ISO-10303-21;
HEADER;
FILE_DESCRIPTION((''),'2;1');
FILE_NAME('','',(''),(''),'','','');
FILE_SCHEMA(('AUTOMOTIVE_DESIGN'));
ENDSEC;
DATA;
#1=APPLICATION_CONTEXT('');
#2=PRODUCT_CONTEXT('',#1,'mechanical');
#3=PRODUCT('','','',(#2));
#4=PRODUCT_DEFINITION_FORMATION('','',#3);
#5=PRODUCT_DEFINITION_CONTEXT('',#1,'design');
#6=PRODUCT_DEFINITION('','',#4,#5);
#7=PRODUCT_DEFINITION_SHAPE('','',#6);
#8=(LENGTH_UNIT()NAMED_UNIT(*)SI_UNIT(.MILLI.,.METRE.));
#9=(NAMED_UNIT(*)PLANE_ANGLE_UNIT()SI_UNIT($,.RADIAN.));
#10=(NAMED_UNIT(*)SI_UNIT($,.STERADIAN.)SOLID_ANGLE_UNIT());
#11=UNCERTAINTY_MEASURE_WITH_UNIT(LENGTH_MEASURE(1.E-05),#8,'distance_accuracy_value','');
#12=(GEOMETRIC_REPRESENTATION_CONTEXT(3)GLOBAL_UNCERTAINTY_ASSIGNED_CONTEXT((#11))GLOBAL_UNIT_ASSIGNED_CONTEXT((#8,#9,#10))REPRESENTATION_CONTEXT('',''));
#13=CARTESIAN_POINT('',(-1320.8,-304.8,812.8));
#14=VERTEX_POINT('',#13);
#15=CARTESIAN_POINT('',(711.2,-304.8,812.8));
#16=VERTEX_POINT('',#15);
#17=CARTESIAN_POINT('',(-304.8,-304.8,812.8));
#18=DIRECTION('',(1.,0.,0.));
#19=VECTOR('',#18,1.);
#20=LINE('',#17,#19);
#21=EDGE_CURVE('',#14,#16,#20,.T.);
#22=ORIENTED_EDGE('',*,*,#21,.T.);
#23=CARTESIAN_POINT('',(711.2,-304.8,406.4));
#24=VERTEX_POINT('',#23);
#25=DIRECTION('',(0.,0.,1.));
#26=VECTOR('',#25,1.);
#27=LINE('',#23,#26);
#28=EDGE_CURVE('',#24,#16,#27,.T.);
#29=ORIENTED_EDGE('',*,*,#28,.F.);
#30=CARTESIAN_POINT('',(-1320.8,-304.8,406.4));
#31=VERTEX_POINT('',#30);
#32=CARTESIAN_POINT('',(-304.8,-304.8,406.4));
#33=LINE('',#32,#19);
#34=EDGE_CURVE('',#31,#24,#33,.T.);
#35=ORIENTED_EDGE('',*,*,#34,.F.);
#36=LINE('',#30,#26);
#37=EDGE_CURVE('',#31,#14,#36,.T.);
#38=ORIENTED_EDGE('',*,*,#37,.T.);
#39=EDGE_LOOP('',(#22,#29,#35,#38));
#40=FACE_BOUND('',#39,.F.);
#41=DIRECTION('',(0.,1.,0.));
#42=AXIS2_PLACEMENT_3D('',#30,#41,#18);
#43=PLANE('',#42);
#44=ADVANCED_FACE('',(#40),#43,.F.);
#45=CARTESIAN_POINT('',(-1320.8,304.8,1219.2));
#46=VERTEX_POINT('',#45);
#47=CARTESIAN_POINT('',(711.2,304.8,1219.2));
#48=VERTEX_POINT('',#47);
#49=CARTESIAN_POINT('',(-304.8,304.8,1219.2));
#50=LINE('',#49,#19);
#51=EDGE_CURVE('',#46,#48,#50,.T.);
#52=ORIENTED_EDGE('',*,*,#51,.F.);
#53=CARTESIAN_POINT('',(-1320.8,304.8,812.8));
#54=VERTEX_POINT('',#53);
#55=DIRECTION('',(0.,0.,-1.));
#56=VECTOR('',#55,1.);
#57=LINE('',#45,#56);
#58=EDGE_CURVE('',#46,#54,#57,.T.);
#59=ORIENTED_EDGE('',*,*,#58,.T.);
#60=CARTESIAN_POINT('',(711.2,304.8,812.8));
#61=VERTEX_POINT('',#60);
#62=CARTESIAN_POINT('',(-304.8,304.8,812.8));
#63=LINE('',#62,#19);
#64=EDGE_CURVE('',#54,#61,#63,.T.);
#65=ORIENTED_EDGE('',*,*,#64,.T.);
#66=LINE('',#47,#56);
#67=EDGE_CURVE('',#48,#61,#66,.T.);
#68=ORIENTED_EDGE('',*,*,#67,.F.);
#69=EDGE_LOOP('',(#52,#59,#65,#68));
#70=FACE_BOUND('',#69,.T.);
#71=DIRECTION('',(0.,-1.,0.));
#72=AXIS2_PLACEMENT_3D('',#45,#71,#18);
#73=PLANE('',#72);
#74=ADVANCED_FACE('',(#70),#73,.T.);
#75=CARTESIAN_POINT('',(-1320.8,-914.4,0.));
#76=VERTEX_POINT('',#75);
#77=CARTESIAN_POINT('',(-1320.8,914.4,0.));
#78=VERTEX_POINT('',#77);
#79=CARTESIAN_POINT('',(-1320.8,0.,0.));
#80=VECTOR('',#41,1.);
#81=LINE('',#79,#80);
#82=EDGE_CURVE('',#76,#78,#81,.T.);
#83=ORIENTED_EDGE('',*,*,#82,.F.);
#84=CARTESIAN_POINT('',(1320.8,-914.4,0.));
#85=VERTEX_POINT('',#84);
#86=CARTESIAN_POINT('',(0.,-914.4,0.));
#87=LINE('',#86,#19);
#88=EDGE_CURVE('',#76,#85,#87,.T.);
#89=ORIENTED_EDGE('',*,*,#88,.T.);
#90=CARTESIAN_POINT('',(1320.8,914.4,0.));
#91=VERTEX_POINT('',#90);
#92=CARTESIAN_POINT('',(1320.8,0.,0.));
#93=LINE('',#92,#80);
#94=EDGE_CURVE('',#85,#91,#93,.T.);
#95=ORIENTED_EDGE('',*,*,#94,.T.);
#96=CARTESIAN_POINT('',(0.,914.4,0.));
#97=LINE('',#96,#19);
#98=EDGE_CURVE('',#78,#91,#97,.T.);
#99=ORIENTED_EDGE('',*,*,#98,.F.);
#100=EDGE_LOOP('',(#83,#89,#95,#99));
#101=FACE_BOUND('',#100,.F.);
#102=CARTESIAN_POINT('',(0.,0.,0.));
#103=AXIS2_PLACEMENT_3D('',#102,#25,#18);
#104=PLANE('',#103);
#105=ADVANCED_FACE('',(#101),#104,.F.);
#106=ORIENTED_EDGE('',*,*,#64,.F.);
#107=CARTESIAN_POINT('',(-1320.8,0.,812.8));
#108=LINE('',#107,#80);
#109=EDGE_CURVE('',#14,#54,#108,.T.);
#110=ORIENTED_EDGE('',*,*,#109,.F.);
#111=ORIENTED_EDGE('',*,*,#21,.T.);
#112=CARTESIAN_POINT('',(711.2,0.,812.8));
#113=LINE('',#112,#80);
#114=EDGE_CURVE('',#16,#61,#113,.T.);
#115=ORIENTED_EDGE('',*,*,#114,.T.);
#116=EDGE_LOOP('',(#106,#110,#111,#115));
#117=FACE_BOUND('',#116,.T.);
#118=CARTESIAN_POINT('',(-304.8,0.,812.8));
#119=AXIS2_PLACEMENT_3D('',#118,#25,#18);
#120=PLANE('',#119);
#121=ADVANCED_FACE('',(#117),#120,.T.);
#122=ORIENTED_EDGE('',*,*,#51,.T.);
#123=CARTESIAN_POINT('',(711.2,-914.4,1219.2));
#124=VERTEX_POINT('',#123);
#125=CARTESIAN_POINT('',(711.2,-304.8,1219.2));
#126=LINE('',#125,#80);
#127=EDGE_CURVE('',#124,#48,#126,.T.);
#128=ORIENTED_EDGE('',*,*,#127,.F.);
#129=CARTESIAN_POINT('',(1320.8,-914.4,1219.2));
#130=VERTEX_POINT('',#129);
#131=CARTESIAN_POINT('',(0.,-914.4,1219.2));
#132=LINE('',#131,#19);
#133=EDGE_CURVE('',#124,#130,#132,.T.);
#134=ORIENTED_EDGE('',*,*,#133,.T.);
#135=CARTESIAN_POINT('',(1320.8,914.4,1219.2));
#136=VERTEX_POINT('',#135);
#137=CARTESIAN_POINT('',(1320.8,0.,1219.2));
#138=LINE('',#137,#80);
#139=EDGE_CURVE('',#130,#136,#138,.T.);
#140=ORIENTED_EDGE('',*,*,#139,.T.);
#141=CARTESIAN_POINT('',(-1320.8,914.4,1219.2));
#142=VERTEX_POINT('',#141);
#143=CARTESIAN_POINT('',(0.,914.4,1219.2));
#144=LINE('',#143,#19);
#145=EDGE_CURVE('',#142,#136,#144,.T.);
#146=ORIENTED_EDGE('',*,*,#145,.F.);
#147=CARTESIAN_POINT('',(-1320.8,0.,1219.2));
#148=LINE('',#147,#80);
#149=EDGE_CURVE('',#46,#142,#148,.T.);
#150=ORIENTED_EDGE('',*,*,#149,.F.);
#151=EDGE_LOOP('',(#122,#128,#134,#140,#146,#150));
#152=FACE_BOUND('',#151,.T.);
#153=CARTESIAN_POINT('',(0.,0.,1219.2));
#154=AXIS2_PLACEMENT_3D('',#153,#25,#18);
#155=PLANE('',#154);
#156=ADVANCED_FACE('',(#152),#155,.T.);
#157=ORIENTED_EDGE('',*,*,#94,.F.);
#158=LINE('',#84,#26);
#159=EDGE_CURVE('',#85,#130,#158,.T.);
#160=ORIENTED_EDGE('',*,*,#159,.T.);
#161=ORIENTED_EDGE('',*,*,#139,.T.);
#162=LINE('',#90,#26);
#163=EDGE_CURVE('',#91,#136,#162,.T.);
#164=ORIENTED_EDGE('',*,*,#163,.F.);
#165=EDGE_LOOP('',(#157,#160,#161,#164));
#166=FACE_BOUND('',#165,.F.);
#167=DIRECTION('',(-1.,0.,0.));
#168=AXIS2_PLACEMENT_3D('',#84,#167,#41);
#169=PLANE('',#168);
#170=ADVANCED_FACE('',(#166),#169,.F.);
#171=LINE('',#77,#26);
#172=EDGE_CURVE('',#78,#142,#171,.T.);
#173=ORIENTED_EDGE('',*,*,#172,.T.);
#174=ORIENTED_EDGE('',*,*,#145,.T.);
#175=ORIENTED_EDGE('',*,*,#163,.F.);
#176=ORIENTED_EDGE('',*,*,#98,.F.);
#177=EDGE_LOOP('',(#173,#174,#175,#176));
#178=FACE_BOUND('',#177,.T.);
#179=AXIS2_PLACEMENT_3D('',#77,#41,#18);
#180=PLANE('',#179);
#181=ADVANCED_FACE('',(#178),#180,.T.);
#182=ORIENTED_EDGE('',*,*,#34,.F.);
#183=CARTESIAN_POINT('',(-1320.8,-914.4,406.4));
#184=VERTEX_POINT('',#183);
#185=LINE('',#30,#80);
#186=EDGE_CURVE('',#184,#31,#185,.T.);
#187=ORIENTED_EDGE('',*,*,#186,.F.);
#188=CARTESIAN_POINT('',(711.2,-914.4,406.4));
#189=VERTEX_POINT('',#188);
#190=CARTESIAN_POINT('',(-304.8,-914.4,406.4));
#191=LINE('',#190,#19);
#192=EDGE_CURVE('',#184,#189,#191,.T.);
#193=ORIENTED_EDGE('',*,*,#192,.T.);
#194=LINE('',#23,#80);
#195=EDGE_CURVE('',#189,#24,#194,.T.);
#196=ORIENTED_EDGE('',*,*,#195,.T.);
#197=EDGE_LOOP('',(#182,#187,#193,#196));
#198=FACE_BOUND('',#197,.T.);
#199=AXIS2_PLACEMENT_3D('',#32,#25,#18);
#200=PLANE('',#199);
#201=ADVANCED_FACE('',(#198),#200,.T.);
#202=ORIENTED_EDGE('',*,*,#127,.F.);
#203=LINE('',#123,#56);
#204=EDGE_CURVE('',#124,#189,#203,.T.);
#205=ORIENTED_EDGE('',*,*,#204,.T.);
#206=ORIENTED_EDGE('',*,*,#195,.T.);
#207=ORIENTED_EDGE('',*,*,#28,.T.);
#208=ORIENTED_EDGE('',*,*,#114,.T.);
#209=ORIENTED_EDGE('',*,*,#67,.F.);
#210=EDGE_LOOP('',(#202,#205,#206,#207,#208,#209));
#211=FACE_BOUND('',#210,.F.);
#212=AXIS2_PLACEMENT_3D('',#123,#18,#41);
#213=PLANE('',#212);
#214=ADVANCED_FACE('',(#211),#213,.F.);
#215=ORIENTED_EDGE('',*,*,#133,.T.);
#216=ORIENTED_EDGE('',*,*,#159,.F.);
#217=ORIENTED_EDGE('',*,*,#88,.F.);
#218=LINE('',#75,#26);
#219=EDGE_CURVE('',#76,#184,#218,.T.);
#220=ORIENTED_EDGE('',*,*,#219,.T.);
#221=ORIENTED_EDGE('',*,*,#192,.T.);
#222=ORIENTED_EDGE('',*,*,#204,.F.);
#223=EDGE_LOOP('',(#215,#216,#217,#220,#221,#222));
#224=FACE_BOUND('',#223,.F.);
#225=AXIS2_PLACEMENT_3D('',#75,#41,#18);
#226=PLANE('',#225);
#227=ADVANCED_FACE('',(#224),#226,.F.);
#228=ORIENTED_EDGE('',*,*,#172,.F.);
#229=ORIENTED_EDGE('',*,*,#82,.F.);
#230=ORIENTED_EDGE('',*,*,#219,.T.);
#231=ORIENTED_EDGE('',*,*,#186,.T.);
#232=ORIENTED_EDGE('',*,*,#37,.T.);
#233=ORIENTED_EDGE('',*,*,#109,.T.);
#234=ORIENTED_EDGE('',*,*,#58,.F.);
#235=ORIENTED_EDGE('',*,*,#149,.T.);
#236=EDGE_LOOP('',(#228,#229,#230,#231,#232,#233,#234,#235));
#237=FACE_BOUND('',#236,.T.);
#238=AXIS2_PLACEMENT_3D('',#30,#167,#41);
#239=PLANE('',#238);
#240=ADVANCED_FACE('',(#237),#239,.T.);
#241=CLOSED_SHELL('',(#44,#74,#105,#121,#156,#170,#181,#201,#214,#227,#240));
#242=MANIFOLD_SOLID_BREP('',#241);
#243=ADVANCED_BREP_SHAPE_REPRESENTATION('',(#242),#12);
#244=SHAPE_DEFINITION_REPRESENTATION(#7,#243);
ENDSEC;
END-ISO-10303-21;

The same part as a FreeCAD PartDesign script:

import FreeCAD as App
import Part
import Sketcher
Q = App.Units.Quantity

doc = App.newDocument("Part")
body = doc.addObject("PartDesign::Body", "Body")

sketch1 = doc.addObject("Sketcher::SketchObject", "Sketch")
body.addObject(sketch1)
sketch1.AttachmentSupport = (doc.XY_Plane, [""])
sketch1.MapMode = "FlatFace"
sketch1.addGeometry(Part.LineSegment(App.Vector(-1320.8, 914.4, 0), App.Vector(-1320.8, -914.4, 0)), False)
sketch1.addGeometry(Part.LineSegment(App.Vector(-1320.8, -914.4, 0), App.Vector(1320.8, -914.4, 0)), False)
sketch1.addGeometry(Part.LineSegment(App.Vector(1320.8, -914.4, 0), App.Vector(1320.8, 914.4, 0)), False)
sketch1.addGeometry(Part.LineSegment(App.Vector(1320.8, 914.4, 0), App.Vector(-1320.8, 914.4, 0)), False)
sketch1.addConstraint(Sketcher.Constraint("Coincident", 0, 2, 1, 1))
sketch1.addConstraint(Sketcher.Constraint("Coincident", 1, 2, 2, 1))
sketch1.addConstraint(Sketcher.Constraint("Coincident", 2, 2, 3, 1))
sketch1.addConstraint(Sketcher.Constraint("Coincident", 3, 2, 0, 1))
sketch1.addConstraint(Sketcher.Constraint("Vertical", 0))
sketch1.addConstraint(Sketcher.Constraint("Horizontal", 1))
sketch1.addConstraint(Sketcher.Constraint("Vertical", 2))
sketch1.addConstraint(Sketcher.Constraint("Horizontal", 3))
sketch1.addConstraint(Sketcher.Constraint("Symmetric", 0, 2, 2, 2, -1, 1))
sketch1.addConstraint(Sketcher.Constraint("DistanceX", 1, 1, 1, 2, Q("104 in")))
sketch1.addConstraint(Sketcher.Constraint("DistanceY", 0, 2, 0, 1, Q("72 in")))
pad1 = doc.addObject("PartDesign::Pad", "Pad")
body.addObject(pad1)
pad1.Profile = sketch1
pad1.Length = Q("48 in")

sketch2 = doc.addObject("Sketcher::SketchObject", "Sketch001")
body.addObject(sketch2)
sketch2.AttachmentSupport = (doc.XY_Plane, [""])
sketch2.MapMode = "FlatFace"
sketch2.AttachmentOffset = App.Placement(App.Vector(0, 0, 48 * 25.4), App.Rotation())
sketch2.addGeometry(Part.LineSegment(App.Vector(-1320.8, 304.8, 0), App.Vector(-1320.8, -914.4, 0)), False)
sketch2.addGeometry(Part.LineSegment(App.Vector(-1320.8, -914.4, 0), App.Vector(711.2, -914.4, 0)), False)
sketch2.addGeometry(Part.LineSegment(App.Vector(711.2, -914.4, 0), App.Vector(711.2, 304.8, 0)), False)
sketch2.addGeometry(Part.LineSegment(App.Vector(711.2, 304.8, 0), App.Vector(-1320.8, 304.8, 0)), False)
sketch2.addConstraint(Sketcher.Constraint("Coincident", 0, 2, 1, 1))
sketch2.addConstraint(Sketcher.Constraint("Coincident", 1, 2, 2, 1))
sketch2.addConstraint(Sketcher.Constraint("Coincident", 2, 2, 3, 1))
sketch2.addConstraint(Sketcher.Constraint("Coincident", 3, 2, 0, 1))
sketch2.addConstraint(Sketcher.Constraint("Vertical", 0))
sketch2.addConstraint(Sketcher.Constraint("Horizontal", 1))
sketch2.addConstraint(Sketcher.Constraint("Vertical", 2))
sketch2.addConstraint(Sketcher.Constraint("Horizontal", 3))
sketch2.addConstraint(Sketcher.Constraint("DistanceX", 1, 1, 1, 2, Q("80 in")))
sketch2.addConstraint(Sketcher.Constraint("DistanceY", 0, 2, 0, 1, Q("48 in")))
sketch2.addConstraint(Sketcher.Constraint("DistanceX", 0, 2, -1, 1, Q("52 in")))
sketch2.addConstraint(Sketcher.Constraint("DistanceY", 0, 2, -1, 1, Q("36 in")))
pocket1 = doc.addObject("PartDesign::Pocket", "Pocket")
body.addObject(pocket1)
pocket1.Profile = sketch2
pocket1.Length = Q("32 in")

sketch3 = doc.addObject("Sketcher::SketchObject", "Sketch002")
body.addObject(sketch3)
sketch3.AttachmentSupport = (doc.XY_Plane, [""])
sketch3.MapMode = "FlatFace"
sketch3.AttachmentOffset = App.Placement(App.Vector(0, 0, 16 * 25.4), App.Rotation())
sketch3.addGeometry(Part.LineSegment(App.Vector(-1320.8, 304.8, 0), App.Vector(-1320.8, -304.8, 0)), False)
sketch3.addGeometry(Part.LineSegment(App.Vector(-1320.8, -304.8, 0), App.Vector(711.2, -304.8, 0)), False)
sketch3.addGeometry(Part.LineSegment(App.Vector(711.2, -304.8, 0), App.Vector(711.2, 304.8, 0)), False)
sketch3.addGeometry(Part.LineSegment(App.Vector(711.2, 304.8, 0), App.Vector(-1320.8, 304.8, 0)), False)
sketch3.addConstraint(Sketcher.Constraint("Coincident", 0, 2, 1, 1))
sketch3.addConstraint(Sketcher.Constraint("Coincident", 1, 2, 2, 1))
sketch3.addConstraint(Sketcher.Constraint("Coincident", 2, 2, 3, 1))
sketch3.addConstraint(Sketcher.Constraint("Coincident", 3, 2, 0, 1))
sketch3.addConstraint(Sketcher.Constraint("Vertical", 0))
sketch3.addConstraint(Sketcher.Constraint("Horizontal", 1))
sketch3.addConstraint(Sketcher.Constraint("Vertical", 2))
sketch3.addConstraint(Sketcher.Constraint("Horizontal", 3))
sketch3.addConstraint(Sketcher.Constraint("DistanceX", 1, 1, 1, 2, Q("80 in")))
sketch3.addConstraint(Sketcher.Constraint("DistanceY", 0, 2, 0, 1, Q("24 in")))
sketch3.addConstraint(Sketcher.Constraint("DistanceX", 0, 2, -1, 1, Q("52 in")))
sketch3.addConstraint(Sketcher.Constraint("DistanceY", 0, 2, -1, 1, Q("12 in")))
pad2 = doc.addObject("PartDesign::Pad", "Pad001")
body.addObject(pad2)
pad2.Profile = sketch3
pad2.Length = Q("16 in")

doc.recompute()
